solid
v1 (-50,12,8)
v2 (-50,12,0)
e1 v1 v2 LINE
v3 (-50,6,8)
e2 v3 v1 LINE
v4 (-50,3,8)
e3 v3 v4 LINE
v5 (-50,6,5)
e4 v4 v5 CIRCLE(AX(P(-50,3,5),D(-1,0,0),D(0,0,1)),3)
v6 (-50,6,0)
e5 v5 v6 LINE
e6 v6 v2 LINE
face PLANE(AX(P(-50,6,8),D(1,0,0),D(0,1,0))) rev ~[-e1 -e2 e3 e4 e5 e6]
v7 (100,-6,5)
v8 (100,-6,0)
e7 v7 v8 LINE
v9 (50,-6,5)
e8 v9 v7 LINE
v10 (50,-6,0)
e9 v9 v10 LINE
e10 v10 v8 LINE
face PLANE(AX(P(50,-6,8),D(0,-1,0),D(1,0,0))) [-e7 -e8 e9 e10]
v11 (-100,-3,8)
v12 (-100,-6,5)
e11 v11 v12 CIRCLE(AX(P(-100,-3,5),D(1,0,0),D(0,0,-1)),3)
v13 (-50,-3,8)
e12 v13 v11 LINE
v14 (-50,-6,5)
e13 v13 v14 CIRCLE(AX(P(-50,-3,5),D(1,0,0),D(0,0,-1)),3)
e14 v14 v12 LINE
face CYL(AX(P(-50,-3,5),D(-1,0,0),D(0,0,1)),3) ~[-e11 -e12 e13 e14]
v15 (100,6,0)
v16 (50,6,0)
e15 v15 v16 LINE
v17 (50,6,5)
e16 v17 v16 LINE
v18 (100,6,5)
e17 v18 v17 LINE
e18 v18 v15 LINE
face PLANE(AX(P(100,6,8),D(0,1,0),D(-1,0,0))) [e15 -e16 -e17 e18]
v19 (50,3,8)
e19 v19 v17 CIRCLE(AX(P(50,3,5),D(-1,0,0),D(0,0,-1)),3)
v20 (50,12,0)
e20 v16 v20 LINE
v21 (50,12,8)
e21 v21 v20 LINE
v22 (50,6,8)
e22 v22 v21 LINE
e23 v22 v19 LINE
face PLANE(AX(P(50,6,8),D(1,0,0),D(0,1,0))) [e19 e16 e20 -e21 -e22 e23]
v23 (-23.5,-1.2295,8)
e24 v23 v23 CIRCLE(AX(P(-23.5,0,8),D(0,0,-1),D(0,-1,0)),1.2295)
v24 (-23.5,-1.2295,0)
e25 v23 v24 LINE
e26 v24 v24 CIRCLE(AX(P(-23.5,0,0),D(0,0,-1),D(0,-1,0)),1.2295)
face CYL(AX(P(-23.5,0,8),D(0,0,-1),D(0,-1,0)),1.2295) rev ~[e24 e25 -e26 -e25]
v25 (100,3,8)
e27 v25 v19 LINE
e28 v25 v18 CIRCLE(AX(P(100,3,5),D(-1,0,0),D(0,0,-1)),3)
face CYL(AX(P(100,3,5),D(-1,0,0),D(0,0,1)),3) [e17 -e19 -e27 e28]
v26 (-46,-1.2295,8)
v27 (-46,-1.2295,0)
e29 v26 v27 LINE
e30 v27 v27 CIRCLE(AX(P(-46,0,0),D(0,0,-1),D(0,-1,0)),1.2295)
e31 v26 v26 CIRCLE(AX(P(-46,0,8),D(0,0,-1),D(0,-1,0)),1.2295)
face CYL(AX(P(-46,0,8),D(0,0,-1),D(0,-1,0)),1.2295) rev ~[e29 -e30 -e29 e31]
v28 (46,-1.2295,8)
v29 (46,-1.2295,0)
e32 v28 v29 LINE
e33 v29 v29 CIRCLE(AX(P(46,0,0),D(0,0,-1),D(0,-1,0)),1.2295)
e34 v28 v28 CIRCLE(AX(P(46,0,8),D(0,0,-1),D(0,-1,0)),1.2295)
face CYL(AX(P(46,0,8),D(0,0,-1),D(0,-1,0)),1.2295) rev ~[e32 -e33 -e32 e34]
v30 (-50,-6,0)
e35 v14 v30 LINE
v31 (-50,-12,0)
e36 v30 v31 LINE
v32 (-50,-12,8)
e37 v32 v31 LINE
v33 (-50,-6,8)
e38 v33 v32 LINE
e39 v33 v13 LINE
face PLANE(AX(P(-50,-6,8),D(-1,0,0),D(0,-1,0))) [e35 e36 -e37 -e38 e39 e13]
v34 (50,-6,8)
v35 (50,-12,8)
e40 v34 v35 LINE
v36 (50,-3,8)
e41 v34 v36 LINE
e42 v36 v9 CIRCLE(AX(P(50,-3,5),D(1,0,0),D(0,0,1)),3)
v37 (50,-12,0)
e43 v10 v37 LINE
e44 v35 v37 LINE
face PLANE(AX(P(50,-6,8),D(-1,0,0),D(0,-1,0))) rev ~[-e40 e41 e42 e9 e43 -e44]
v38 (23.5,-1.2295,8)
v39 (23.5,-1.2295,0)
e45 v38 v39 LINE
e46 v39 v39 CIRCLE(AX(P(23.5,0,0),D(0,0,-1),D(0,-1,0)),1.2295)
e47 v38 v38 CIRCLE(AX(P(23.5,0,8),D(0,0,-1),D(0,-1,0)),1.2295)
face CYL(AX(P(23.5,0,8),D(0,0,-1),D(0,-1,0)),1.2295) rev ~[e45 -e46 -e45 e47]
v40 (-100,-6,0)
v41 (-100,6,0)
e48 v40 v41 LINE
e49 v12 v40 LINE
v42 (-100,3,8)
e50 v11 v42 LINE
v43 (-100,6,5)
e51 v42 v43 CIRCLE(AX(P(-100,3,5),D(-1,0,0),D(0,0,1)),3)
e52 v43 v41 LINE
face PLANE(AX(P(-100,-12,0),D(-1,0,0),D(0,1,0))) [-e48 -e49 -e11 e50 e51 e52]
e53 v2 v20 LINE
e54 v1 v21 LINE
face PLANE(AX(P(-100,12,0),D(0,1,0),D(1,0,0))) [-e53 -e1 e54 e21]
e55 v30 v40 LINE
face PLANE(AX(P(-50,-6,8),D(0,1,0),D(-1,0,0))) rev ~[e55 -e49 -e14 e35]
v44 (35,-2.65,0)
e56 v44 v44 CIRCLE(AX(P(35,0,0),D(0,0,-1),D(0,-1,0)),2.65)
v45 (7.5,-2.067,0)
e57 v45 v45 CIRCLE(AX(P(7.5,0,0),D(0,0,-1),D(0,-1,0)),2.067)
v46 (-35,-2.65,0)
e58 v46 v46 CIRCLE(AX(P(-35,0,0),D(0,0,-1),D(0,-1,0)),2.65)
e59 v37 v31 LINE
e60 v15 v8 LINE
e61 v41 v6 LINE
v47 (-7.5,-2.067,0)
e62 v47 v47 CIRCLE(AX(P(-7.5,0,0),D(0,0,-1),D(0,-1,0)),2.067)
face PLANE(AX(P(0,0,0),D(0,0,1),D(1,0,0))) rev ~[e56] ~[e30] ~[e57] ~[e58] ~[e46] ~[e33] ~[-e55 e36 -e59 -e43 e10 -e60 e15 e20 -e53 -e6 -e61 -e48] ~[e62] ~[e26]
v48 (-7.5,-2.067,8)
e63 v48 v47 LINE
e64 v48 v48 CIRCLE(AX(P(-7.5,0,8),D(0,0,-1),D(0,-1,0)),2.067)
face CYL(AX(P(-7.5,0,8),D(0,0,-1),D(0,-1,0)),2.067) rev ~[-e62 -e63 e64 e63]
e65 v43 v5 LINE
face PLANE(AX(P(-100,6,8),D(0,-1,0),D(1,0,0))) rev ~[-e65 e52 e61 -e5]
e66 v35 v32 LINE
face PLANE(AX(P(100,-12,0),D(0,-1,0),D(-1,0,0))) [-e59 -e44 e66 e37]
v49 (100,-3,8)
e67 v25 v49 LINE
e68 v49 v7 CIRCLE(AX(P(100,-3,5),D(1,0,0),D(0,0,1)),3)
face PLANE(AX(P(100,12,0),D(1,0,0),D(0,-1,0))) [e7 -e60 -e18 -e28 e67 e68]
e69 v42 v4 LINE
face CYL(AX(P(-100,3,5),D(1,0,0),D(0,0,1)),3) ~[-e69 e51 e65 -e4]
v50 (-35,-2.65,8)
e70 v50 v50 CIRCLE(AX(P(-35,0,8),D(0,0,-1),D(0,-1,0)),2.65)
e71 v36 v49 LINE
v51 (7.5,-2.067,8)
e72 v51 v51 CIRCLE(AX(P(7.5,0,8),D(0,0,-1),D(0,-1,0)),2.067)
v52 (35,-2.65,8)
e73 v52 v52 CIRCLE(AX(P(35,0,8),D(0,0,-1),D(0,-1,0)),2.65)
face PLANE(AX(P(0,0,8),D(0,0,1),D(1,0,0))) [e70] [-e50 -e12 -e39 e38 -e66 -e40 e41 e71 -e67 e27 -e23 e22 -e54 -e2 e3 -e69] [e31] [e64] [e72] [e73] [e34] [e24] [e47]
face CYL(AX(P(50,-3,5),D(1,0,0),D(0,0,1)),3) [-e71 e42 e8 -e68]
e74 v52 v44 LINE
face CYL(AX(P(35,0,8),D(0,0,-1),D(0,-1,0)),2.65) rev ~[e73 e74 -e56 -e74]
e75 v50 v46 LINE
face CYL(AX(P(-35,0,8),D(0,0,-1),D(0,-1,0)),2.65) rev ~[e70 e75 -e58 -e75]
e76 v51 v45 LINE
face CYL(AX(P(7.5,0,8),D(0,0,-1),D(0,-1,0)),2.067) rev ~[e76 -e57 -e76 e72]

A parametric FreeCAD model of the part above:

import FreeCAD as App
import Part
import Sketcher

V = App.Vector


def edges_at(feature, points):
    """Names of the edges that pass closest to the given points."""
    edges = feature.Shape.Edges
    near = lambda p: min(range(len(edges)), key=lambda i: edges[i].distToShape(Part.Vertex(*p))[0])
    return sorted({f"Edge{near(p) + 1}" for p in points})

doc = App.newDocument("Part")
params = doc.addObject("Spreadsheet::Sheet", "Params")
for row, (alias, value) in enumerate([
    ("sketch1_width", "200 mm"),
    ("sketch1_height", "24 mm"),
    ("pad1_length", "8 mm"),
    ("sketch2_diameter", "5.3 mm"),
    ("hole_diameter", "5.3 mm"),
    ("hole2_diameter", "4.134 mm"),
    ("hole3_diameter", "2.459 mm"),
    ("sketch5_width", "50 mm"),
    ("fillet_radius", "3 mm"),
], start=1):
    params.set(f"A{row}", alias)
    params.set(f"B{row}", "=" + value)
    params.setAlias(f"B{row}", alias)

body = doc.addObject("PartDesign::Body", "Body")

# Sketch on XY plane
sketch1 = body.newObject("Sketcher::SketchObject", "Sketch")
sketch1.AttachmentSupport = (doc.getObject("XY_Plane"), [""])
sketch1.MapMode = "FlatFace"
sketch1.addGeometry(Part.LineSegment(V(100, 12, 0), V(-100, 12, 0)), False)
sketch1.addGeometry(Part.LineSegment(V(-100, 12, 0), V(-100, -12, 0)), False)
sketch1.addGeometry(Part.LineSegment(V(-100, -12, 0), V(100, -12, 0)), False)
sketch1.addGeometry(Part.LineSegment(V(100, -12, 0), V(100, 12, 0)), False)
sketch1.addConstraint(Sketcher.Constraint("Coincident", 0, 2, 1, 1))
sketch1.addConstraint(Sketcher.Constraint("Coincident", 1, 2, 2, 1))
sketch1.addConstraint(Sketcher.Constraint("Coincident", 2, 2, 3, 1))
sketch1.addConstraint(Sketcher.Constraint("Coincident", 3, 2, 0, 1))
sketch1.addConstraint(Sketcher.Constraint("Horizontal", 0))
sketch1.addConstraint(Sketcher.Constraint("Vertical", 1))
sketch1.addConstraint(Sketcher.Constraint("Horizontal", 2))
sketch1.addConstraint(Sketcher.Constraint("Vertical", 3))
sketch1.addConstraint(Sketcher.Constraint("Symmetric", 0, 2, 2, 2, -1, 1))
sketch1.addConstraint(Sketcher.Constraint("DistanceX", 0, 2, 0, 1, 200.0))
sketch1.addConstraint(Sketcher.Constraint("DistanceY", 1, 2, 1, 1, 24.0))
sketch1.setExpression("Constraints[9]", "Params.sketch1_width")
sketch1.setExpression("Constraints[10]", "Params.sketch1_height")
pad1 = body.newObject("PartDesign::Pad", "Pad")
pad1.Profile = sketch1
pad1.setExpression("Length", "Params.pad1_length")

# Sketch on XY plane
sketch2 = body.newObject("Sketcher::SketchObject", "Sketch001")
sketch2.AttachmentSupport = (doc.getObject("XY_Plane"), [""])
sketch2.MapMode = "FlatFace"
sketch2.AttachmentOffset = App.Placement(V(0, 0, 8), App.Rotation())
sketch2.addGeometry(Part.Circle(V(-35, 0, 0), V(0, 0, 1), 2.6), False)
sketch2.addGeometry(Part.Circle(V(35, 0, 0), V(0, 0, 1), 2.6), False)
sketch2.addConstraint(Sketcher.Constraint("Equal", 0, 1))
sketch2.addConstraint(Sketcher.Constraint("Symmetric", 0, 3, 1, 3, -1, 1))
sketch2.addConstraint(Sketcher.Constraint("PointOnObject", 0, 3, -1))
sketch2.addConstraint(Sketcher.Constraint("Diameter", 0, 5.3))
sketch2.addConstraint(Sketcher.Constraint("DistanceX", 0, 3, -1, 1, 35.0))
sketch2.setExpression("Constraints[3]", "Params.sketch2_diameter")
doc.recompute()
hole = body.newObject("PartDesign::Hole", "Hole")
hole.Profile = sketch2
hole.ThreadType = "None"
hole.setExpression("Diameter", "Params.hole_diameter")
hole.DepthType = "ThroughAll"

# Sketch on XY plane
sketch3 = body.newObject("Sketcher::SketchObject", "Sketch002")
sketch3.AttachmentSupport = (doc.getObject("XY_Plane"), [""])
sketch3.MapMode = "FlatFace"
sketch3.AttachmentOffset = App.Placement(V(0, 0, 8), App.Rotation())
sketch3.addGeometry(Part.Circle(V(-7.5, 0, 0), V(0, 0, 1), 2.1), False)
sketch3.addGeometry(Part.Circle(V(7.5, 0, 0), V(0, 0, 1), 2.1), False)
sketch3.addConstraint(Sketcher.Constraint("Equal", 0, 1))
sketch3.addConstraint(Sketcher.Constraint("Symmetric", 0, 3, 1, 3, -1, 1))
sketch3.addConstraint(Sketcher.Constraint("PointOnObject", 0, 3, -1))
sketch3.addConstraint(Sketcher.Constraint("Diameter", 0, 4.134))
sketch3.addConstraint(Sketcher.Constraint("DistanceX", 0, 3, 1, 3, 15.0))
doc.recompute()
hole2 = body.newObject("PartDesign::Hole", "Hole001")
hole2.Profile = sketch3
hole2.ThreadType = "None"
hole2.setExpression("Diameter", "Params.hole2_diameter")
hole2.DepthType = "ThroughAll"

# Sketch on XY plane
sketch4 = body.newObject("Sketcher::SketchObject", "Sketch003")
sketch4.AttachmentSupport = (doc.getObject("XY_Plane"), [""])
sketch4.MapMode = "FlatFace"
sketch4.AttachmentOffset = App.Placement(V(0, 0, 8), App.Rotation())
sketch4.addGeometry(Part.Circle(V(23.5, 0, 0), V(0, 0, 1), 1.2), False)
sketch4.addGeometry(Part.Circle(V(46, 0, 0), V(0, 0, 1), 1.2), False)
sketch4.addGeometry(Part.Circle(V(-23.5, 0, 0), V(0, 0, 1), 1.2), False)
sketch4.addGeometry(Part.Circle(V(-46, 0, 0), V(0, 0, 1), 1.2), False)
sketch4.addConstraint(Sketcher.Constraint("Equal", 0, 1))
sketch4.addConstraint(Sketcher.Constraint("Equal", 1, 2))
sketch4.addConstraint(Sketcher.Constraint("Equal", 2, 3))
sketch4.addConstraint(Sketcher.Constraint("Symmetric", 0, 3, 2, 3, -1, 1))
sketch4.addConstraint(Sketcher.Constraint("Symmetric", 1, 3, 3, 3, -1, 1))
sketch4.addConstraint(Sketcher.Constraint("PointOnObject", 0, 3, -1))
sketch4.addConstraint(Sketcher.Constraint("PointOnObject", 1, 3, -1))
sketch4.addConstraint(Sketcher.Constraint("Diameter", 0, 2.459))
sketch4.addConstraint(Sketcher.Constraint("DistanceX", -1, 1, 1, 3, 46.0))
sketch4.addConstraint(Sketcher.Constraint("DistanceX", 2, 3, 0, 3, 47.0))
doc.recompute()
hole3 = body.newObject("PartDesign::Hole", "Hole002")
hole3.Profile = sketch4
hole3.ThreadType = "None"
hole3.setExpression("Diameter", "Params.hole3_diameter")
hole3.DepthType = "ThroughAll"

# Sketch on XY plane
sketch5 = body.newObject("Sketcher::SketchObject", "Sketch004")
sketch5.AttachmentSupport = (doc.getObject("XY_Plane"), [""])
sketch5.MapMode = "FlatFace"
sketch5.AttachmentOffset = App.Placement(V(0, 0, 8), App.Rotation())
sketch5.addGeometry(Part.LineSegment(V(-100, 12, 0), V(-100, 6, 0)), False)
sketch5.addGeometry(Part.LineSegment(V(-100, 6, 0), V(-50, 6, 0)), False)
sketch5.addGeometry(Part.LineSegment(V(-50, 6, 0), V(-50, 12, 0)), False)
sketch5.addGeometry(Part.LineSegment(V(-50, 12, 0), V(-100, 12, 0)), False)
sketch5.addGeometry(Part.LineSegment(V(-50, -6, 0), V(-100, -6, 0)), False)
sketch5.addGeometry(Part.LineSegment(V(-100, -6, 0), V(-100, -12, 0)), False)
sketch5.addGeometry(Part.LineSegment(V(-100, -12, 0), V(-50, -12, 0)), False)
sketch5.addGeometry(Part.LineSegment(V(-50, -12, 0), V(-50, -6, 0)), False)
sketch5.addGeometry(Part.LineSegment(V(100, 12, 0), V(50, 12, 0)), False)
sketch5.addGeometry(Part.LineSegment(V(50, 12, 0), V(50, 6, 0)), False)
sketch5.addGeometry(Part.LineSegment(V(50, 6, 0), V(100, 6, 0)), False)
sketch5.addGeometry(Part.LineSegment(V(100, 6, 0), V(100, 12, 0)), False)
sketch5.addGeometry(Part.LineSegment(V(50, -6, 0), V(50, -12, 0)), False)
sketch5.addGeometry(Part.LineSegment(V(50, -12, 0), V(100, -12, 0)), False)
sketch5.addGeometry(Part.LineSegment(V(100, -12, 0), V(100, -6, 0)), False)
sketch5.addGeometry(Part.LineSegment(V(100, -6, 0), V(50, -6, 0)), False)
sketch5.addConstraint(Sketcher.Constraint("Coincident", 0, 2, 1, 1))
sketch5.addConstraint(Sketcher.Constraint("Coincident", 1, 2, 2, 1))
sketch5.addConstraint(Sketcher.Constraint("Coincident", 2, 2, 3, 1))
sketch5.addConstraint(Sketcher.Constraint("Coincident", 3, 2, 0, 1))
sketch5.addConstraint(Sketcher.Constraint("Coincident", 4, 2, 5, 1))
sketch5.addConstraint(Sketcher.Constraint("Coincident", 5, 2, 6, 1))
sketch5.addConstraint(Sketcher.Constraint("Coincident", 6, 2, 7, 1))
sketch5.addConstraint(Sketcher.Constraint("Coincident", 7, 2, 4, 1))
sketch5.addConstraint(Sketcher.Constraint("Coincident", 8, 2, 9, 1))
sketch5.addConstraint(Sketcher.Constraint("Coincident", 9, 2, 10, 1))
sketch5.addConstraint(Sketcher.Constraint("Coincident", 10, 2, 11, 1))
sketch5.addConstraint(Sketcher.Constraint("Coincident", 11, 2, 8, 1))
sketch5.addConstraint(Sketcher.Constraint("Coincident", 12, 2, 13, 1))
sketch5.addConstraint(Sketcher.Constraint("Coincident", 13, 2, 14, 1))
sketch5.addConstraint(Sketcher.Constraint("Coincident", 14, 2, 15, 1))
sketch5.addConstraint(Sketcher.Constraint("Coincident", 15, 2, 12, 1))
sketch5.addConstraint(Sketcher.Constraint("Vertical", 0))
sketch5.addConstraint(Sketcher.Constraint("Horizontal", 1))
sketch5.addConstraint(Sketcher.Constraint("Vertical", 2))
sketch5.addConstraint(Sketcher.Constraint("Horizontal", 3))
sketch5.addConstraint(Sketcher.Constraint("Horizontal", 4))
sketch5.addConstraint(Sketcher.Constraint("Vertical", 5))
sketch5.addConstraint(Sketcher.Constraint("Horizontal", 6))
sketch5.addConstraint(Sketcher.Constraint("Vertical", 7))
sketch5.addConstraint(Sketcher.Constraint("Horizontal", 8))
sketch5.addConstraint(Sketcher.Constraint("Vertical", 9))
sketch5.addConstraint(Sketcher.Constraint("Horizontal", 10))
sketch5.addConstraint(Sketcher.Constraint("Vertical", 11))
sketch5.addConstraint(Sketcher.Constraint("Vertical", 12))
sketch5.addConstraint(Sketcher.Constraint("Horizontal", 13))
sketch5.addConstraint(Sketcher.Constraint("Vertical", 14))
sketch5.addConstraint(Sketcher.Constraint("Horizontal", 15))
sketch5.addConstraint(Sketcher.Constraint("Symmetric", 6, 2, 8, 2, -1, 1))
sketch5.addConstraint(Sketcher.Constraint("Symmetric", 4, 2, 10, 2, -1, 1))
sketch5.addConstraint(Sketcher.Constraint("Symmetric", 2, 2, 12, 2, -1, 1))
sketch5.addConstraint(Sketcher.Constraint("Symmetric", 0, 2, 14, 2, -1, 1))
sketch5.addConstraint(Sketcher.Constraint("Symmetric", 2, 2, 8, 2, -2))
sketch5.addConstraint(Sketcher.Constraint("Symmetric", 0, 2, 10, 2, -2))
sketch5.addConstraint(Sketcher.Constraint("DistanceX", 1, 1, 1, 2, 50.0))
sketch5.addConstraint(Sketcher.Constraint("DistanceX", 1, 2, -1, 1, 50.0))
sketch5.addConstraint(Sketcher.Constraint("DistanceY", -1, 1, 2, 2, 12.0))
sketch5.addConstraint(Sketcher.Constraint("DistanceY", 4, 2, 0, 2, 12.0))
sketch5.setExpression("Constraints[38]", "Params.sketch5_width")
pocket1 = body.newObject("PartDesign::Pocket", "Pocket")
pocket1.Profile = sketch5
pocket1.Type = "ThroughAll"
doc.recompute()

fillet = body.newObject("PartDesign::Fillet", "Fillet")
fillet.Base = (pocket1, edges_at(pocket1, [
    (-75, -6, 8),
    (-75, 6, 8),
    (75, 6, 8),
    (75, -6, 8),
]))
fillet.setExpression("Radius", "Params.fillet_radius")

doc.recompute()
